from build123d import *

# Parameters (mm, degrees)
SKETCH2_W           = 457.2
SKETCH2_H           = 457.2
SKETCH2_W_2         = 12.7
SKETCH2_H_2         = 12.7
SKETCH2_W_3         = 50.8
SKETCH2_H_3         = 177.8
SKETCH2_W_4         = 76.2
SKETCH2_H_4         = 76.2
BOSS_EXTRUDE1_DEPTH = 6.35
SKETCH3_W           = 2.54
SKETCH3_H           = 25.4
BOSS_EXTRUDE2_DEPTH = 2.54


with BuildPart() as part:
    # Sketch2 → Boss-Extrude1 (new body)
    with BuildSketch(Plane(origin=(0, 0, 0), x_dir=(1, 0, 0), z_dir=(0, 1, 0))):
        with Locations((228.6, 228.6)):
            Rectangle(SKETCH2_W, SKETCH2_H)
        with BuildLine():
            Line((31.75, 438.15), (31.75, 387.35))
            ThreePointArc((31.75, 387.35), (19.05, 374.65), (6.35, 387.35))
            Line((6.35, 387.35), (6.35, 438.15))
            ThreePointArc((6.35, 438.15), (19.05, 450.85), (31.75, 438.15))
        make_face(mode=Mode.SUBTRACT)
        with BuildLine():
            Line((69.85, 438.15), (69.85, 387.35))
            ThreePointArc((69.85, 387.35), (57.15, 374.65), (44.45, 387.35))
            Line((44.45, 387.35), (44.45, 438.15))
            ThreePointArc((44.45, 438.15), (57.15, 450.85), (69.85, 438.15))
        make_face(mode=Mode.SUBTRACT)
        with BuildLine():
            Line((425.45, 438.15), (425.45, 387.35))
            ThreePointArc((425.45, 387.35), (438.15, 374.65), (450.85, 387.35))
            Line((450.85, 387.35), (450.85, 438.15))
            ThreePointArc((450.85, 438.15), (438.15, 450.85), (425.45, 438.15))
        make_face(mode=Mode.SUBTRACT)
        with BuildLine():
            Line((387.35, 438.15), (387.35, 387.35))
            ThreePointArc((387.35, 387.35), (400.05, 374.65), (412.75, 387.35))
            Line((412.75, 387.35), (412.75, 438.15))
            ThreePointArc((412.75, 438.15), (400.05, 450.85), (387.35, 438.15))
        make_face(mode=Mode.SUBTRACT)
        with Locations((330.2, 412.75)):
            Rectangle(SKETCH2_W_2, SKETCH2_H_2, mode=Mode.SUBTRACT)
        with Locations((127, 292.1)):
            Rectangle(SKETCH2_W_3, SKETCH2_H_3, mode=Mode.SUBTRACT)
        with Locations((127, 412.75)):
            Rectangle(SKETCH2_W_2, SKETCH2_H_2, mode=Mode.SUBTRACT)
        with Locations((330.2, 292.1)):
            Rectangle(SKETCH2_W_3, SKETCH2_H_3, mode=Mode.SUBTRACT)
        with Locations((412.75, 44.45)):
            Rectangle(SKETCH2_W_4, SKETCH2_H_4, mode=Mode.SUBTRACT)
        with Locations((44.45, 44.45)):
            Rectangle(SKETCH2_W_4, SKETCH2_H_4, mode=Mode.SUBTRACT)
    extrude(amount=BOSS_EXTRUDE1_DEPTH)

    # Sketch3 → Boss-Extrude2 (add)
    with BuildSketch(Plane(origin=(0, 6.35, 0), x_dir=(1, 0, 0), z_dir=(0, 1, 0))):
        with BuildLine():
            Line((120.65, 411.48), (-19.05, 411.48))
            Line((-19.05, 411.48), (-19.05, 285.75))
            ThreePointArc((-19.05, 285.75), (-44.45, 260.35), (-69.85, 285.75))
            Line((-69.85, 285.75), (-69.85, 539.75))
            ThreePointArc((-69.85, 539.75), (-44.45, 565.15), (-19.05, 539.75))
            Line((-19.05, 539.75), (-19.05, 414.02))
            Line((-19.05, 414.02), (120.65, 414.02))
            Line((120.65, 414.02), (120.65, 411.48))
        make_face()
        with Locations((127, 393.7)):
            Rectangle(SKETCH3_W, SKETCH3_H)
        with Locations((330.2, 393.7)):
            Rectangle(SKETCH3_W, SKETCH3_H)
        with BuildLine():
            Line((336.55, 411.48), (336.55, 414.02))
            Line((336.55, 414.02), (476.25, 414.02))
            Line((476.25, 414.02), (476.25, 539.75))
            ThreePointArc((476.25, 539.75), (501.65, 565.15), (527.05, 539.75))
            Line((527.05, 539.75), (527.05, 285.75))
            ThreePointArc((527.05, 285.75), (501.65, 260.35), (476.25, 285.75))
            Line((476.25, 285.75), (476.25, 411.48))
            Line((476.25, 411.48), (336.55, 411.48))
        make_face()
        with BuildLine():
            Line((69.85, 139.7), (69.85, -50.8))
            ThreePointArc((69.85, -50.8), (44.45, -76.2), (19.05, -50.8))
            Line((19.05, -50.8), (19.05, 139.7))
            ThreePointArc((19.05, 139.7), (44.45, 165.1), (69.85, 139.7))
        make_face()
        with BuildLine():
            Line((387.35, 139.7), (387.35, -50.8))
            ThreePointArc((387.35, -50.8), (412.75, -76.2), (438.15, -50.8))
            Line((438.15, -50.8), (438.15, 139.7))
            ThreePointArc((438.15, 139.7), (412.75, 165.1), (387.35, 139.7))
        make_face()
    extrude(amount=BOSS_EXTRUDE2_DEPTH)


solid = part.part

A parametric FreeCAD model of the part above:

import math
import FreeCAD as App
import Part
import Sketcher
from FreeCAD import Vector
Q = App.Units.Quantity

doc = App.newDocument("Part")
body = doc.addObject("PartDesign::Body", "Body")

sketch1 = body.newObject("Sketcher::SketchObject", "Sketch")
sketch1.AttachmentSupport = (doc.getObject("XZ_Plane"), [""])
sketch1.MapMode = "FlatFace"
sketch1.addGeometry([
    Part.LineSegment(Vector(0, -457, 0), Vector(0, 0, 0)),
    Part.LineSegment(Vector(0, 0, 0), Vector(457, 0, 0)),
    Part.LineSegment(Vector(457, 0, 0), Vector(457, -457, 0)),
    Part.LineSegment(Vector(457, -457, 0), Vector(0, -457, 0)),
    Part.LineSegment(Vector(83, -6, 0), Vector(6, -6, 0)),
    Part.LineSegment(Vector(6, -6, 0), Vector(6, -83, 0)),
    Part.LineSegment(Vector(6, -83, 0), Vector(83, -83, 0)),
    Part.LineSegment(Vector(83, -83, 0), Vector(83, -6, 0)),
    Part.LineSegment(Vector(451, -6, 0), Vector(375, -6, 0)),
    Part.LineSegment(Vector(375, -6, 0), Vector(375, -83, 0)),
    Part.LineSegment(Vector(375, -83, 0), Vector(451, -83, 0)),
    Part.LineSegment(Vector(451, -83, 0), Vector(451, -6, 0)),
    Part.LineSegment(Vector(152, -203, 0), Vector(102, -203, 0)),
    Part.LineSegment(Vector(102, -203, 0), Vector(102, -381, 0)),
    Part.LineSegment(Vector(102, -381, 0), Vector(152, -381, 0)),
    Part.LineSegment(Vector(152, -381, 0), Vector(152, -203, 0)),
    Part.ArcOfCircle(Part.Circle(Vector(19, -438, 0), Vector(0, 0, 1), 13), math.radians(180), math.radians(360)),
    Part.LineSegment(Vector(32, -438, 0), Vector(32, -387, 0)),
    Part.ArcOfCircle(Part.Circle(Vector(19, -387, 0), Vector(0, 0, 1), 13), math.radians(0), math.radians(180)),
    Part.LineSegment(Vector(6, -387, 0), Vector(6, -438, 0)),
    Part.ArcOfCircle(Part.Circle(Vector(57, -438, 0), Vector(0, 0, 1), 13), math.radians(180), math.radians(360)),
    Part.LineSegment(Vector(70, -438, 0), Vector(70, -387, 0)),
    Part.ArcOfCircle(Part.Circle(Vector(57, -387, 0), Vector(0, 0, 1), 13), math.radians(0), math.radians(180)),
    Part.LineSegment(Vector(44, -387, 0), Vector(44, -438, 0)),
    Part.LineSegment(Vector(133, -406, 0), Vector(121, -406, 0)),
    Part.LineSegment(Vector(121, -406, 0), Vector(121, -419, 0)),
    Part.LineSegment(Vector(121, -419, 0), Vector(133, -419, 0)),
    Part.LineSegment(Vector(133, -419, 0), Vector(133, -406, 0)),
    Part.LineSegment(Vector(356, -203, 0), Vector(305, -203, 0)),
    Part.LineSegment(Vector(305, -203, 0), Vector(305, -381, 0)),
    Part.LineSegment(Vector(305, -381, 0), Vector(356, -381, 0)),
    Part.LineSegment(Vector(356, -381, 0), Vector(356, -203, 0)),
    Part.LineSegment(Vector(337, -406, 0), Vector(324, -406, 0)),
    Part.LineSegment(Vector(324, -406, 0), Vector(324, -419, 0)),
    Part.LineSegment(Vector(324, -419, 0), Vector(337, -419, 0)),
    Part.LineSegment(Vector(337, -419, 0), Vector(337, -406, 0)),
    Part.LineSegment(Vector(387, -387, 0), Vector(387, -438, 0)),
    Part.ArcOfCircle(Part.Circle(Vector(400, -438, 0), Vector(0, 0, 1), 13), math.radians(180), math.radians(360)),
    Part.LineSegment(Vector(413, -438, 0), Vector(413, -387, 0)),
    Part.ArcOfCircle(Part.Circle(Vector(400, -387, 0), Vector(0, 0, 1), 13), math.radians(0), math.radians(180)),
    Part.LineSegment(Vector(425, -387, 0), Vector(425, -438, 0)),
    Part.ArcOfCircle(Part.Circle(Vector(438, -438, 0), Vector(0, 0, 1), 13), math.radians(180), math.radians(360)),
    Part.LineSegment(Vector(451, -438, 0), Vector(451, -387, 0)),
    Part.ArcOfCircle(Part.Circle(Vector(438, -387, 0), Vector(0, 0, 1), 13), math.radians(0), math.radians(180)),
], False)
sketch1.addConstraint([
    Sketcher.Constraint("Coincident", 0, 2, 1, 1),
    Sketcher.Constraint("Coincident", 1, 2, 2, 1),
    Sketcher.Constraint("Coincident", 2, 2, 3, 1),
    Sketcher.Constraint("Coincident", 3, 2, 0, 1),
    Sketcher.Constraint("Coincident", 4, 2, 5, 1),
    Sketcher.Constraint("Coincident", 5, 2, 6, 1),
    Sketcher.Constraint("Coincident", 6, 2, 7, 1),
    Sketcher.Constraint("Coincident", 7, 2, 4, 1),
    Sketcher.Constraint("Coincident", 8, 2, 9, 1),
    Sketcher.Constraint("Coincident", 9, 2, 10, 1),
    Sketcher.Constraint("Coincident", 10, 2, 11, 1),
    Sketcher.Constraint("Coincident", 11, 2, 8, 1),
    Sketcher.Constraint("Coincident", 12, 2, 13, 1),
    Sketcher.Constraint("Coincident", 13, 2, 14, 1),
    Sketcher.Constraint("Coincident", 14, 2, 15, 1),
    Sketcher.Constraint("Coincident", 15, 2, 12, 1),
    Sketcher.Constraint("Tangent", 16, 2, 17, 1),
    Sketcher.Constraint("Tangent", 17, 2, 18, 1),
    Sketcher.Constraint("Tangent", 18, 2, 19, 1),
    Sketcher.Constraint("Tangent", 19, 2, 16, 1),
    Sketcher.Constraint("Tangent", 20, 2, 21, 1),
    Sketcher.Constraint("Tangent", 21, 2, 22, 1),
    Sketcher.Constraint("Tangent", 22, 2, 23, 1),
    Sketcher.Constraint("Tangent", 23, 2, 20, 1),
    Sketcher.Constraint("Coincident", 24, 2, 25, 1),
    Sketcher.Constraint("Coincident", 25, 2, 26, 1),
    Sketcher.Constraint("Coincident", 26, 2, 27, 1),
    Sketcher.Constraint("Coincident", 27, 2, 24, 1),
    Sketcher.Constraint("Coincident", 28, 2, 29, 1),
    Sketcher.Constraint("Coincident", 29, 2, 30, 1),
    Sketcher.Constraint("Coincident", 30, 2, 31, 1),
    Sketcher.Constraint("Coincident", 31, 2, 28, 1),
    Sketcher.Constraint("Coincident", 32, 2, 33, 1),
    Sketcher.Constraint("Coincident", 33, 2, 34, 1),
    Sketcher.Constraint("Coincident", 34, 2, 35, 1),
    Sketcher.Constraint("Coincident", 35, 2, 32, 1),
    Sketcher.Constraint("Tangent", 36, 2, 37, 1),
    Sketcher.Constraint("Tangent", 37, 2, 38, 1),
    Sketcher.Constraint("Tangent", 38, 2, 39, 1),
    Sketcher.Constraint("Tangent", 39, 2, 36, 1),
    Sketcher.Constraint("Tangent", 40, 2, 41, 1),
    Sketcher.Constraint("Tangent", 41, 2, 42, 1),
    Sketcher.Constraint("Tangent", 42, 2, 43, 1),
    Sketcher.Constraint("Tangent", 43, 2, 40, 1),
    Sketcher.Constraint("Vertical", 0),
    Sketcher.Constraint("Horizontal", 1),
    Sketcher.Constraint("Vertical", 2),
    Sketcher.Constraint("Horizontal", 3),
    Sketcher.Constraint("Horizontal", 4),
    Sketcher.Constraint("Vertical", 5),
    Sketcher.Constraint("Horizontal", 6),
    Sketcher.Constraint("Vertical", 7),
    Sketcher.Constraint("Horizontal", 8),
    Sketcher.Constraint("Vertical", 9),
    Sketcher.Constraint("Horizontal", 10),
    Sketcher.Constraint("Vertical", 11),
    Sketcher.Constraint("Horizontal", 12),
    Sketcher.Constraint("Vertical", 13),
    Sketcher.Constraint("Horizontal", 14),
    Sketcher.Constraint("Vertical", 15),
    Sketcher.Constraint("Vertical", 17),
    Sketcher.Constraint("Vertical", 19),
    Sketcher.Constraint("Vertical", 21),
    Sketcher.Constraint("Vertical", 23),
    Sketcher.Constraint("Horizontal", 24),
    Sketcher.Constraint("Vertical", 25),
    Sketcher.Constraint("Horizontal", 26),
    Sketcher.Constraint("Vertical", 27),
    Sketcher.Constraint("Horizontal", 28),
    Sketcher.Constraint("Vertical", 29),
    Sketcher.Constraint("Horizontal", 30),
    Sketcher.Constraint("Vertical", 31),
    Sketcher.Constraint("Horizontal", 32),
    Sketcher.Constraint("Vertical", 33),
    Sketcher.Constraint("Horizontal", 34),
    Sketcher.Constraint("Vertical", 35),
    Sketcher.Constraint("Vertical", 36),
    Sketcher.Constraint("Vertical", 38),
    Sketcher.Constraint("Vertical", 40),
    Sketcher.Constraint("Vertical", 42),
    Sketcher.Constraint("Coincident", 0, 2, -1, 1),
    Sketcher.Constraint("Equal", 18, 20),
    Sketcher.Constraint("Equal", 22, 37),
    Sketcher.Constraint("Equal", 39, 41),
    Sketcher.Constraint("Horizontal", 16, 3, 20, 3),
    Sketcher.Constraint("Horizontal", 18, 3, 22, 3),
    Sketcher.Constraint("Horizontal", 20, 3, 37, 3),
    Sketcher.Constraint("Horizontal", 22, 3, 39, 3),
    Sketcher.Constraint("Horizontal", 37, 3, 41, 3),
    Sketcher.Constraint("Horizontal", 39, 3, 43, 3),
    Sketcher.Constraint("Horizontal", 7, 2, 8, 2),
    Sketcher.Constraint("Horizontal", 6, 2, 9, 2),
    Sketcher.Constraint("Horizontal", 15, 2, 28, 2),
    Sketcher.Constraint("Horizontal", 14, 2, 29, 2),
    Sketcher.Constraint("Horizontal", 27, 2, 32, 2),
    Sketcher.Constraint("Horizontal", 26, 2, 33, 2),
    Sketcher.Constraint("Vertical", 5, 2, 18, 2),
    Sketcher.Constraint("Vertical", 11, 2, 41, 2),
    Sketcher.Constraint("Equal", 6, 8),
    Sketcher.Constraint("Equal", 14, 28),
    Sketcher.Constraint("Equal", 26, 32),
    Sketcher.Constraint("Equal", 3, 0),
    Sketcher.Constraint("Equal", 10, 5),
    Sketcher.Constraint("Equal", 30, 17),
    Sketcher.Constraint("Equal", 34, 25),
    Sketcher.Constraint("Radius", 16, Q("0.5 in")),
    Sketcher.Constraint("DistanceX", 1, 1, 1, 2, Q("18 in")),
    Sketcher.Constraint("DistanceX", 4, 2, 4, 1, Q("3 in")),
    Sketcher.Constraint("DistanceX", 12, 2, 12, 1, Q("2 in")),
    Sketcher.Constraint("DistanceY", 13, 2, 13, 1, Q("7 in")),
    Sketcher.Constraint("DistanceX", 24, 2, 24, 1, Q("0.5 in")),
    Sketcher.Constraint("DistanceX", -1, 1, 12, 2, Q("4 in")),
    Sketcher.Constraint("DistanceY", 12, 2, -1, 1, Q("8 in")),
    Sketcher.Constraint("DistanceY", 24, 2, -1, 1, Q("16 in")),
    Sketcher.Constraint("DistanceX", -1, 1, 28, 2, Q("12 in")),
    Sketcher.Constraint("DistanceX", 16, 3, 37, 3, Q("15 in")),
    Sketcher.Constraint("DistanceX", 20, 3, 41, 3, Q("15 in")),
    Sketcher.Constraint("DistanceY", 18, 3, 4, 2, Q("15 in")),
    Sketcher.Constraint("DistanceX", 4, 2, 22, 3, Q("2 in")),
    Sketcher.Constraint("DistanceX", 21, 2, 24, 2, Q("2 in")),
    Sketcher.Constraint("DistanceX", 32, 2, 39, 3, Q("3 in")),
    Sketcher.Constraint("DistanceX", -1, 1, 16, 3, Q("0.75 in")),
    Sketcher.Constraint("DistanceY", 16, 3, -1, 1, Q("17.25 in")),
])
pad1 = body.newObject("PartDesign::Pad", "Pad")
pad1.Profile = sketch1
pad1.Length = Q("0.25 in")
pad1.Reversed = True

sketch2 = body.newObject("Sketcher::SketchObject", "Sketch001")
sketch2.AttachmentSupport = (doc.getObject("XZ_Plane"), [""])
sketch2.MapMode = "FlatFace"
sketch2.AttachmentOffset = App.Placement(Vector(0, 0, -0.25 * 25.4), App.Rotation())
sketch2.addGeometry([
    Part.LineSegment(Vector(-19.1, -411.5, 0), Vector(120.7, -411.5, 0)),
    Part.LineSegment(Vector(120.7, -411.5, 0), Vector(120.7, -414, 0)),
    Part.LineSegment(Vector(120.7, -414, 0), Vector(-19.1, -414, 0)),
    Part.LineSegment(Vector(-19.1, -414, 0), Vector(-19.1, -539.8, 0)),
    Part.ArcOfCircle(Part.Circle(Vector(-44.5, -539.8, 0), Vector(0, 0, 1), 25.4), math.radians(180), math.radians(360)),
    Part.LineSegment(Vector(-69.8, -539.8, 0), Vector(-69.8, -285.8, 0)),
    Part.ArcOfCircle(Part.Circle(Vector(-44.5, -285.8, 0), Vector(0, 0, 1), 25.4), math.radians(0), math.radians(180)),
    Part.LineSegment(Vector(-19.1, -285.8, 0), Vector(-19.1, -411.5, 0)),
    Part.LineSegment(Vector(125.7, -406.4, 0), Vector(125.7, -381, 0)),
    Part.LineSegment(Vector(125.7, -381, 0), Vector(128.3, -381, 0)),
    Part.LineSegment(Vector(128.3, -381, 0), Vector(128.3, -406.4, 0)),
    Part.LineSegment(Vector(128.3, -406.4, 0), Vector(125.7, -406.4, 0)),
    Part.LineSegment(Vector(328.9, -406.4, 0), Vector(328.9, -381, 0)),
    Part.LineSegment(Vector(328.9, -381, 0), Vector(331.5, -381, 0)),
    Part.LineSegment(Vector(331.5, -381, 0), Vector(331.5, -406.4, 0)),
    Part.LineSegment(Vector(331.5, -406.4, 0), Vector(328.9, -406.4, 0)),
    Part.LineSegment(Vector(336.6, -414, 0), Vector(336.6, -411.5, 0)),
    Part.LineSegment(Vector(336.6, -411.5, 0), Vector(476.2, -411.5, 0)),
    Part.LineSegment(Vector(476.2, -411.5, 0), Vector(476.2, -285.8, 0)),
    Part.ArcOfCircle(Part.Circle(Vector(501.6, -285.8, 0), Vector(0, 0, 1), 25.4), math.radians(0), math.radians(180)),
    Part.LineSegment(Vector(527, -285.8, 0), Vector(527, -539.8, 0)),
    Part.ArcOfCircle(Part.Circle(Vector(501.6, -539.8, 0), Vector(0, 0, 1), 25.4), math.radians(180), math.radians(360)),
    Part.LineSegment(Vector(476.2, -539.8, 0), Vector(476.2, -414, 0)),
    Part.LineSegment(Vector(476.2, -414, 0), Vector(336.6, -414, 0)),
    Part.LineSegment(Vector(69.8, 50.8, 0), Vector(69.8, -139.7, 0)),
    Part.ArcOfCircle(Part.Circle(Vector(44.5, -139.7, 0), Vector(0, 0, 1), 25.4), math.radians(180), math.radians(360)),
    Part.LineSegment(Vector(19.1, -139.7, 0), Vector(19.1, 50.8, 0)),
    Part.ArcOfCircle(Part.Circle(Vector(44.5, 50.8, 0), Vector(0, 0, 1), 25.4), math.radians(0), math.radians(180)),
    Part.LineSegment(Vector(387.4, -139.7, 0), Vector(387.4, 50.8, 0)),
    Part.ArcOfCircle(Part.Circle(Vector(412.8, 50.8, 0), Vector(0, 0, 1), 25.4), math.radians(0), math.radians(180)),
    Part.LineSegment(Vector(438.1, 50.8, 0), Vector(438.1, -139.7, 0)),
    Part.ArcOfCircle(Part.Circle(Vector(412.8, -139.7, 0), Vector(0, 0, 1), 25.4), math.radians(180), math.radians(360)),
], False)
sketch2.addConstraint([
    Sketcher.Constraint("Coincident", 0, 2, 1, 1),
    Sketcher.Constraint("Coincident", 1, 2, 2, 1),
    Sketcher.Constraint("Coincident", 2, 2, 3, 1),
    Sketcher.Constraint("Tangent", 3, 2, 4, 2),
    Sketcher.Constraint("Tangent", 4, 1, 5, 1),
    Sketcher.Constraint("Tangent", 5, 2, 6, 2),
    Sketcher.Constraint("Tangent", 6, 1, 7, 1),
    Sketcher.Constraint("Coincident", 7, 2, 0, 1),
    Sketcher.Constraint("Coincident", 8, 2, 9, 1),
    Sketcher.Constraint("Coincident", 9, 2, 10, 1),
    Sketcher.Constraint("Coincident", 10, 2, 11, 1),
    Sketcher.Constraint("Coincident", 11, 2, 8, 1),
    Sketcher.Constraint("Coincident", 12, 2, 13, 1),
    Sketcher.Constraint("Coincident", 13, 2, 14, 1),
    Sketcher.Constraint("Coincident", 14, 2, 15, 1),
    Sketcher.Constraint("Coincident", 15, 2, 12, 1),
    Sketcher.Constraint("Coincident", 16, 2, 17, 1),
    Sketcher.Constraint("Coincident", 17, 2, 18, 1),
    Sketcher.Constraint("Tangent", 18, 2, 19, 2),
    Sketcher.Constraint("Tangent", 19, 1, 20, 1),
    Sketcher.Constraint("Tangent", 20, 2, 21, 2),
    Sketcher.Constraint("Tangent", 21, 1, 22, 1),
    Sketcher.Constraint("Coincident", 22, 2, 23, 1),
    Sketcher.Constraint("Coincident", 23, 2, 16, 1),
    Sketcher.Constraint("Tangent", 24, 2, 25, 2),
    Sketcher.Constraint("Tangent", 25, 1, 26, 1),
    Sketcher.Constraint("Tangent", 26, 2, 27, 2),
    Sketcher.Constraint("Tangent", 27, 1, 24, 1),
    Sketcher.Constraint("Tangent", 28, 2, 29, 2),
    Sketcher.Constraint("Tangent", 29, 1, 30, 1),
    Sketcher.Constraint("Tangent", 30, 2, 31, 2),
    Sketcher.Constraint("Tangent", 31, 1, 28, 1),
    Sketcher.Constraint("Horizontal", 0),
    Sketcher.Constraint("Vertical", 1),
    Sketcher.Constraint("Horizontal", 2),
    Sketcher.Constraint("Vertical", 3),
    Sketcher.Constraint("Vertical", 5),
    Sketcher.Constraint("Vertical", 7),
    Sketcher.Constraint("Vertical", 8),
    Sketcher.Constraint("Horizontal", 9),
    Sketcher.Constraint("Vertical", 10),
    Sketcher.Constraint("Horizontal", 11),
    Sketcher.Constraint("Vertical", 12),
    Sketcher.Constraint("Horizontal", 13),
    Sketcher.Constraint("Vertical", 14),
    Sketcher.Constraint("Horizontal", 15),
    Sketcher.Constraint("Vertical", 16),
    Sketcher.Constraint("Horizontal", 17),
    Sketcher.Constraint("Vertical", 18),
    Sketcher.Constraint("Vertical", 20),
    Sketcher.Constraint("Vertical", 22),
    Sketcher.Constraint("Horizontal", 23),
    Sketcher.Constraint("Vertical", 24),
    Sketcher.Constraint("Vertical", 26),
    Sketcher.Constraint("Vertical", 28),
    Sketcher.Constraint("Vertical", 30),
    Sketcher.Constraint("Equal", 4, 6),
    Sketcher.Constraint("Equal", 6, 19),
    Sketcher.Constraint("Equal", 19, 21),
    Sketcher.Constraint("Equal", 21, 25),
    Sketcher.Constraint("Equal", 27, 29),
    Sketcher.Constraint("Horizontal", 6, 3, 19, 3),
    Sketcher.Constraint("Horizontal", 4, 3, 21, 3),
    Sketcher.Constraint("Horizontal", 27, 3, 29, 3),
    Sketcher.Constraint("Horizontal", 25, 3, 31, 3),
    Sketcher.Constraint("Horizontal", 9, 2, 12, 2),
    Sketcher.Constraint("Horizontal", 11, 2, 14, 2),
    Sketcher.Constraint("Horizontal", 7, 2, 16, 2),
    Sketcher.Constraint("Horizontal", 2, 2, 22, 2),
    Sketcher.Constraint("Equal", 11, 13),
    Sketcher.Constraint("Equal", 2, 17),
    Sketcher.Constraint("Equal", 15, 1),
    Sketcher.Constraint("Equal", 3, 7),
    Sketcher.Constraint("Radius", 4, Q("1 in")),
    Sketcher.Constraint("DistanceY", 5, 1, 5, 2, Q("10 in")),
    Sketcher.Constraint("DistanceY", 8, 1, 8, 2, Q("1 in")),
    Sketcher.Constraint("DistanceX", 0, 1, 0, 2, Q("5.5 in")),
    Sketcher.Constraint("DistanceX", 9, 1, 9, 2, Q("0.1 in")),
    Sketcher.Constraint("DistanceY", 24, 2, 24, 1, Q("7.5 in")),
    Sketcher.Constraint("DistanceY", -1, 1, 27, 3, Q("2 in")),
    Sketcher.Constraint("DistanceY", 8, 2, -1, 1, Q("15 in")),
    Sketcher.Constraint("DistanceX", 25, 3, 19, 3, Q("18 in")),
    Sketcher.Constraint("DistanceX", 6, 3, 29, 3, Q("18 in")),
    Sketcher.Constraint("DistanceX", 25, 3, 0, 2, Q("3 in")),
    Sketcher.Constraint("DistanceX", 8, 2, 12, 2, Q("8 in")),
    Sketcher.Constraint("DistanceY", 0, 2, -1, 1, Q("16.2 in")),
    Sketcher.Constraint("DistanceX", 0, 2, 8, 2, Q("0.2 in")),
    Sketcher.Constraint("DistanceX", 4, 3, -1, 1, Q("1.75 in")),
])
pad2 = body.newObject("PartDesign::Pad", "Pad001")
pad2.Profile = sketch2
pad2.Length = Q("0.1 in")
pad2.Reversed = True

doc.recompute()
